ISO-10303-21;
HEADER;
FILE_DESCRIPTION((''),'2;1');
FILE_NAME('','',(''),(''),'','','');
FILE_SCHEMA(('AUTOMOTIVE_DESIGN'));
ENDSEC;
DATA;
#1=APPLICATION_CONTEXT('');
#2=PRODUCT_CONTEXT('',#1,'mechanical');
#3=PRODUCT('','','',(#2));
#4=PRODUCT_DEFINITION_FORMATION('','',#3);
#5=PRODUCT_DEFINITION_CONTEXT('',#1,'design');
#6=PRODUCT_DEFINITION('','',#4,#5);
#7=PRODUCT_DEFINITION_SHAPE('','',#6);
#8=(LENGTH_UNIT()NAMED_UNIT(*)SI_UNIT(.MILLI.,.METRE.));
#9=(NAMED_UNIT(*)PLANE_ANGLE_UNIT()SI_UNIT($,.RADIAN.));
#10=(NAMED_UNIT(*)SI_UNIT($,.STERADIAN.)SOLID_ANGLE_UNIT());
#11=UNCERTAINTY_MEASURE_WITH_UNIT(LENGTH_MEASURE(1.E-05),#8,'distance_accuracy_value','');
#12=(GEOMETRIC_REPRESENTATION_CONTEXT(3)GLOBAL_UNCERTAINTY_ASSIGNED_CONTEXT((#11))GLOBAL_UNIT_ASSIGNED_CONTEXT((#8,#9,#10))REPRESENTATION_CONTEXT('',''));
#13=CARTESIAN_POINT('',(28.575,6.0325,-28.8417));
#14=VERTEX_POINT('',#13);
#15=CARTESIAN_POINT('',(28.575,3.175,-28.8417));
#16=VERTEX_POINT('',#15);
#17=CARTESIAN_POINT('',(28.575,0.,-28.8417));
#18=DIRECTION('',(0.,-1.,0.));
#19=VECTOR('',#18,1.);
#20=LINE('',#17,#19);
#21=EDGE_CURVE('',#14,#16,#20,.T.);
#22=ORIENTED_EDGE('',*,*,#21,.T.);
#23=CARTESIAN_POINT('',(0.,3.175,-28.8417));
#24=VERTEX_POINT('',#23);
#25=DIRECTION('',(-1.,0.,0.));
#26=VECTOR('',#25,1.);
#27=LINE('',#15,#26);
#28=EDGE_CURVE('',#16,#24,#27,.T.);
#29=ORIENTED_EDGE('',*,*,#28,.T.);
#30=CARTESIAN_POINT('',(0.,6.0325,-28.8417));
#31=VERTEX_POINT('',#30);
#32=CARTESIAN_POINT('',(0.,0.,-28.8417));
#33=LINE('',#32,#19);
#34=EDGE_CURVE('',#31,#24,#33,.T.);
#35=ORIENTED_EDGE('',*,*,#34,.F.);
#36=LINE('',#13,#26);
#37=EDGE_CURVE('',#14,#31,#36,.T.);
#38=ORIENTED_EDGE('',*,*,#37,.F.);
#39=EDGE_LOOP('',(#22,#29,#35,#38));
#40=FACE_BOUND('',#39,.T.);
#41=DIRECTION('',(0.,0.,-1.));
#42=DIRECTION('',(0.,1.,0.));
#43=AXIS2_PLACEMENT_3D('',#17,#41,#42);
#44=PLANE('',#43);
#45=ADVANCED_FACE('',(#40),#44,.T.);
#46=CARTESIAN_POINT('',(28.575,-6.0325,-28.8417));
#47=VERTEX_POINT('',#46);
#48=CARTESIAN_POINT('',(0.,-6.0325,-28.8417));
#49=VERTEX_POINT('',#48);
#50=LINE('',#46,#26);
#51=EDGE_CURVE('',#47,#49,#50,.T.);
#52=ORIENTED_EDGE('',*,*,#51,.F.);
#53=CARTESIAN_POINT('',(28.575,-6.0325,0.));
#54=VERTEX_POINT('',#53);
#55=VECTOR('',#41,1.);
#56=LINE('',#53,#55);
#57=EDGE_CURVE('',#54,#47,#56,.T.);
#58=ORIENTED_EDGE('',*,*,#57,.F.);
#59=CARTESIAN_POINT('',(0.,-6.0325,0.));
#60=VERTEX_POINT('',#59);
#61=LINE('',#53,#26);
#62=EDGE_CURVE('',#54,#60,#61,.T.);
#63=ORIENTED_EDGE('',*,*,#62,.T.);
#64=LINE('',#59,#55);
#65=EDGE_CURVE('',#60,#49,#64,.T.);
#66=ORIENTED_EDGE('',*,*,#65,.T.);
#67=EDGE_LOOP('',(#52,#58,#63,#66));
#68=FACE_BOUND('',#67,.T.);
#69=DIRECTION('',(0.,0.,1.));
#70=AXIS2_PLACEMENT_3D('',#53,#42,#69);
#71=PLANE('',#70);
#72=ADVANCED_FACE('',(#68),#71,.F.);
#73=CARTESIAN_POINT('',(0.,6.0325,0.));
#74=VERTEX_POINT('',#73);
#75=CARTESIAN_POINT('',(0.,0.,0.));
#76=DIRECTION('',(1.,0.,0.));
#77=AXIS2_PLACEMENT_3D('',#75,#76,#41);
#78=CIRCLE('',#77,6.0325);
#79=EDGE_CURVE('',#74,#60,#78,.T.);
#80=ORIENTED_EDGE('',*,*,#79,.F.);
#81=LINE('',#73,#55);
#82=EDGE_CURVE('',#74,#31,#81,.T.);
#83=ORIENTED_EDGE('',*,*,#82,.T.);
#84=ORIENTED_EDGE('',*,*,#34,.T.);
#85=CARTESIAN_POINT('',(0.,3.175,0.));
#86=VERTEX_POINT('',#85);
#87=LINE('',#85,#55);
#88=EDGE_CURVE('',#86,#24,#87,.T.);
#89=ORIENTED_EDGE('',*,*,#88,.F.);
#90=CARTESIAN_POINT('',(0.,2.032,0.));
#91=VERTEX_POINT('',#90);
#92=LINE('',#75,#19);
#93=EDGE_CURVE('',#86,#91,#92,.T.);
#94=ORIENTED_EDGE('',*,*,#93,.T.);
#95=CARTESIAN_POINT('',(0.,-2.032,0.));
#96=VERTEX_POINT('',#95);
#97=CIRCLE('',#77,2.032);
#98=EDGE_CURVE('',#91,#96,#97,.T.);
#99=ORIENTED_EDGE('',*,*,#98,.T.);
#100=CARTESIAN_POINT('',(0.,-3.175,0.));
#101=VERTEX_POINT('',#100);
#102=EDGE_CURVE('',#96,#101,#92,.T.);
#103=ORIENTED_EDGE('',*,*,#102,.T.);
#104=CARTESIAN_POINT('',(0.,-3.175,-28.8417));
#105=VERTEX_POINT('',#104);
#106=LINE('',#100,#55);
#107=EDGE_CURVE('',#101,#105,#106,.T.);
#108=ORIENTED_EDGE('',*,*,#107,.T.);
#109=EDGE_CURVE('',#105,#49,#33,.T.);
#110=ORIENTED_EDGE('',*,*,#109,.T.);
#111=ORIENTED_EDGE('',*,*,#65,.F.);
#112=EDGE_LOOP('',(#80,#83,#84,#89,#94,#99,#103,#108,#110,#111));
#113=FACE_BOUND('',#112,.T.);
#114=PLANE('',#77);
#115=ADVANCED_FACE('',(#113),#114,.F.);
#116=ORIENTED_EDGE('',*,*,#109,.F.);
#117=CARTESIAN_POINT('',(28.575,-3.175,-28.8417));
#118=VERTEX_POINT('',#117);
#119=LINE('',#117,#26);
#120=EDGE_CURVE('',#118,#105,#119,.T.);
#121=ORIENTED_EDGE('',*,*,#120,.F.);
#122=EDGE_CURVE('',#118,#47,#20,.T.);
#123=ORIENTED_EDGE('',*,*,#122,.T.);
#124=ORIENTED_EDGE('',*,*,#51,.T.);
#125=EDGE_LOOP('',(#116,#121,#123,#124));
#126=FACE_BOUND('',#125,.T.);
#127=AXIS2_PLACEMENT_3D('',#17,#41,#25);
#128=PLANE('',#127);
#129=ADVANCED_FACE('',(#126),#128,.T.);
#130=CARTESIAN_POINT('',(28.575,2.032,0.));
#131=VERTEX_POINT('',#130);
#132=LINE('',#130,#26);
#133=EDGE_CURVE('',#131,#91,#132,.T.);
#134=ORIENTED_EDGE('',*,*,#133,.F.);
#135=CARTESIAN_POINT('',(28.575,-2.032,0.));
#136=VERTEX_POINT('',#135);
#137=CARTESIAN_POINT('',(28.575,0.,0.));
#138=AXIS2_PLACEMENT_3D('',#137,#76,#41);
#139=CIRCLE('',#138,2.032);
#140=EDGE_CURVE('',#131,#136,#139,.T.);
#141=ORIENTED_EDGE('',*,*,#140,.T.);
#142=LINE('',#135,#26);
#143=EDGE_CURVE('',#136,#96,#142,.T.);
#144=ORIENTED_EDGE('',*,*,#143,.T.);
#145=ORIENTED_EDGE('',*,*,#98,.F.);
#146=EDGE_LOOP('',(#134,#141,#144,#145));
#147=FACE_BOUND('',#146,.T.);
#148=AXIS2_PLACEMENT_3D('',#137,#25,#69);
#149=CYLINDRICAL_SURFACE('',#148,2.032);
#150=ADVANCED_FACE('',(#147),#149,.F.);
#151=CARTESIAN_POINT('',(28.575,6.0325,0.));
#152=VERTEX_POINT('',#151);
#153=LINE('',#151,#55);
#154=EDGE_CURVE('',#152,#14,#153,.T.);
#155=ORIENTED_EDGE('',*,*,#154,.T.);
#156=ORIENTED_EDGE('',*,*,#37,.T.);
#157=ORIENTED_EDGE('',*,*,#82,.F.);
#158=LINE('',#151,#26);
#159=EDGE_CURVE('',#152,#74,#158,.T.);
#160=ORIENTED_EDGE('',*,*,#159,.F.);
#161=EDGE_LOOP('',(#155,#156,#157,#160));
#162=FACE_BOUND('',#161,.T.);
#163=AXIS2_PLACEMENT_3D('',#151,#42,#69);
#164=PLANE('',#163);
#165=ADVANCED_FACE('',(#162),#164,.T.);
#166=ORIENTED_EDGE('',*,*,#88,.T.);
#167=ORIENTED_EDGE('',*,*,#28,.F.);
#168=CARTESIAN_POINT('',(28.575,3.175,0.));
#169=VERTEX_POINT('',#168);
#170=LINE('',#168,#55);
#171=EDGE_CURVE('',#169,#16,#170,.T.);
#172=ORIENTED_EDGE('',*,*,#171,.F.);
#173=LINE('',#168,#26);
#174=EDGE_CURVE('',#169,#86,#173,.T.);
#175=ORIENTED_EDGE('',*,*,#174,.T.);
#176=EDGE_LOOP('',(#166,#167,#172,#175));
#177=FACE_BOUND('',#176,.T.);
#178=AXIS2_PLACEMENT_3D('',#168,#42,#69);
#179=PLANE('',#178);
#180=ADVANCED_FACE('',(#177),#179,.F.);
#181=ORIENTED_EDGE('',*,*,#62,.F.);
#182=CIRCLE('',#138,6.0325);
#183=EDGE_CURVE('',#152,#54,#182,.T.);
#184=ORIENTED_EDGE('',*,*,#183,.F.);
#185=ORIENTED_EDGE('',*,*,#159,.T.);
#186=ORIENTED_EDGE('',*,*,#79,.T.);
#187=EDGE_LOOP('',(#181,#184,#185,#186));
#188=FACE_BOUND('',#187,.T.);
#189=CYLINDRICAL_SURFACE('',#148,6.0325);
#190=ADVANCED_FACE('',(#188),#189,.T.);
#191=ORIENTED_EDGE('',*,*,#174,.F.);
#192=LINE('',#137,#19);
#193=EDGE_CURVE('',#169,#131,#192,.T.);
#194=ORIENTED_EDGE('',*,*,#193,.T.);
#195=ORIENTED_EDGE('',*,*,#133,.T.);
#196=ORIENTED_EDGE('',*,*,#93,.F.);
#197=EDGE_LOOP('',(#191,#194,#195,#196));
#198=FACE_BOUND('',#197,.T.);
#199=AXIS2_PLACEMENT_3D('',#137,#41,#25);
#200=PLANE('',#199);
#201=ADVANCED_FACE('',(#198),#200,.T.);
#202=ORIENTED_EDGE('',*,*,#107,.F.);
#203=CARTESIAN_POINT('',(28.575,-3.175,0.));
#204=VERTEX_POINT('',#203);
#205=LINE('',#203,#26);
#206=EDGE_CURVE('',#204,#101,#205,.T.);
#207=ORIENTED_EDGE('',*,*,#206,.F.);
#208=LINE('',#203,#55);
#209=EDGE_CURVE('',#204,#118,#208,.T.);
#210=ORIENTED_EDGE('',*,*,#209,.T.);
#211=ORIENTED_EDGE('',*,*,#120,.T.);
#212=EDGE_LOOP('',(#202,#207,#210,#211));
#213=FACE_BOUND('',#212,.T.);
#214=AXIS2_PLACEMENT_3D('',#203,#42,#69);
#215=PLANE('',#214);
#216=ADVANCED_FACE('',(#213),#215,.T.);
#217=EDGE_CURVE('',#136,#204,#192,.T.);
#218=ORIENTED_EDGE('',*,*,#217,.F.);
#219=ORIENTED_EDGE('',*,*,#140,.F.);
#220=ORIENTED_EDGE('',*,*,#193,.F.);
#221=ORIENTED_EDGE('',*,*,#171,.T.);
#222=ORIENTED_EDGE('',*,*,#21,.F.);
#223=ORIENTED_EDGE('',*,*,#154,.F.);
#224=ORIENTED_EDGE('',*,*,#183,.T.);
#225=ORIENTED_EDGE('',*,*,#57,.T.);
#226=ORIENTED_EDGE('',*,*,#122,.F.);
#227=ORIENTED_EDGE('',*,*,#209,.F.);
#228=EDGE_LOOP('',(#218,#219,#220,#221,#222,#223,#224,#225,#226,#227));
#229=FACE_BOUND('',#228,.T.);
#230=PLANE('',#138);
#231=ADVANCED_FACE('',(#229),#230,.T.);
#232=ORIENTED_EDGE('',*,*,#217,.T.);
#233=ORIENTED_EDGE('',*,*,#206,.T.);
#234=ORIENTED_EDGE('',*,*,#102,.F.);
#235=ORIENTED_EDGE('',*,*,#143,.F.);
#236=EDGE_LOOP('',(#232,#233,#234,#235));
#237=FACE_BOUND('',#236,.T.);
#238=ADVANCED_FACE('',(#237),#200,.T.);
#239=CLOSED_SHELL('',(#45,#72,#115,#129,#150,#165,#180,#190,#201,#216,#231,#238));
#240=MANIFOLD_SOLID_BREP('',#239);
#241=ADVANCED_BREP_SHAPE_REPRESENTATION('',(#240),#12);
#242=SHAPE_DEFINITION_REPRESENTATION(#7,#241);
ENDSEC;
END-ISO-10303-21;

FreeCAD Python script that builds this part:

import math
import FreeCAD as App
import Part
import Sketcher

V = App.Vector
Q = App.Units.Quantity

doc = App.newDocument("Part")
params = doc.addObject("Spreadsheet::Sheet", "Params")
for row, (alias, value) in enumerate([
    ("sketch1_radius", "0.08 in"),
    ("sketch1_width", "0.045 in"),
    ("pad1_length", "1.125 in"),
], start=1):
    params.set(f"A{row}", alias)
    params.set(f"B{row}", "=" + value)
    params.setAlias(f"B{row}", alias)

body = doc.addObject("PartDesign::Body", "Body")

# Sketch on YZ plane
sketch1 = body.newObject("Sketcher::SketchObject", "Sketch")
sketch1.AttachmentSupport = (doc.getObject("YZ_Plane"), [""])
sketch1.MapMode = "FlatFace"
sketch1.addGeometry([
    Part.LineSegment(V(3.175, 0, 0), V(3.175, -28.8417, 0)),  # 0
    Part.LineSegment(V(3.175, -28.8417, 0), V(6.0325, -28.8417, 0)),  # 1
    Part.LineSegment(V(6.0325, -28.8417, 0), V(6.0325, 0, 0)),  # 2
    Part.ArcOfCircle(Part.Circle(V(0, 0, 0), V(0, 0, 1), 6.0325), math.radians(0), math.radians(180)),  # 3
    Part.LineSegment(V(-6.0325, 0, 0), V(-6.0325, -28.8417, 0)),  # 4
    Part.LineSegment(V(-6.0325, -28.8417, 0), V(-3.175, -28.8417, 0)),  # 5
    Part.LineSegment(V(-3.175, -28.8417, 0), V(-3.175, 0, 0)),  # 6
    Part.LineSegment(V(-3.175, 0, 0), V(-2.032, 0, 0)),  # 7
    Part.ArcOfCircle(Part.Circle(V(0, 0, 0), V(0, 0, 1), 2.032), math.radians(0), math.radians(180)),  # 8
    Part.LineSegment(V(2.032, 0, 0), V(3.175, 0, 0)),  # 9
], False)
sketch1.addConstraint([
    Sketcher.Constraint("Coincident", 0, 2, 1, 1),
    Sketcher.Constraint("Coincident", 1, 2, 2, 1),
    Sketcher.Constraint("Tangent", 2, 2, 3, 1),
    Sketcher.Constraint("Tangent", 3, 2, 4, 1),
    Sketcher.Constraint("Coincident", 4, 2, 5, 1),
    Sketcher.Constraint("Coincident", 5, 2, 6, 1),
    Sketcher.Constraint("Coincident", 6, 2, 7, 1),
    Sketcher.Constraint("Coincident", 7, 2, 8, 2),
    Sketcher.Constraint("Coincident", 8, 1, 9, 1),
    Sketcher.Constraint("Coincident", 9, 2, 0, 1),
    Sketcher.Constraint("Vertical", 0),
    Sketcher.Constraint("Horizontal", 1),
    Sketcher.Constraint("Vertical", 2),
    Sketcher.Constraint("Vertical", 4),
    Sketcher.Constraint("Horizontal", 5),
    Sketcher.Constraint("Vertical", 6),
    Sketcher.Constraint("Horizontal", 7),
    Sketcher.Constraint("Horizontal", 9),
    Sketcher.Constraint("Coincident", 3, 3, -1, 1),
    Sketcher.Constraint("Coincident", 8, 3, -1, 1),
    Sketcher.Constraint("Symmetric", 6, 2, 9, 2, -1, 1),
    Sketcher.Constraint("PointOnObject", 6, 2, -1),
    Sketcher.Constraint("Horizontal", 1, 2, 4, 2),
    Sketcher.Constraint("Radius", 8, Q("0.08 in")),
    Sketcher.Constraint("Radius", 3, Q("0.2375 in")),
    Sketcher.Constraint("DistanceX", 7, 1, 7, 2, Q("0.045 in")),
    Sketcher.Constraint("DistanceY", 0, 2, 0, 1, Q("1.1355 in")),
])
sketch1.setExpression("Constraints[23]", "Params.sketch1_radius")
sketch1.setExpression("Constraints[25]", "Params.sketch1_width")
pad1 = body.newObject("PartDesign::Pad", "Pad")
pad1.Profile = sketch1
pad1.setExpression("Length", "Params.pad1_length")

doc.recompute()
